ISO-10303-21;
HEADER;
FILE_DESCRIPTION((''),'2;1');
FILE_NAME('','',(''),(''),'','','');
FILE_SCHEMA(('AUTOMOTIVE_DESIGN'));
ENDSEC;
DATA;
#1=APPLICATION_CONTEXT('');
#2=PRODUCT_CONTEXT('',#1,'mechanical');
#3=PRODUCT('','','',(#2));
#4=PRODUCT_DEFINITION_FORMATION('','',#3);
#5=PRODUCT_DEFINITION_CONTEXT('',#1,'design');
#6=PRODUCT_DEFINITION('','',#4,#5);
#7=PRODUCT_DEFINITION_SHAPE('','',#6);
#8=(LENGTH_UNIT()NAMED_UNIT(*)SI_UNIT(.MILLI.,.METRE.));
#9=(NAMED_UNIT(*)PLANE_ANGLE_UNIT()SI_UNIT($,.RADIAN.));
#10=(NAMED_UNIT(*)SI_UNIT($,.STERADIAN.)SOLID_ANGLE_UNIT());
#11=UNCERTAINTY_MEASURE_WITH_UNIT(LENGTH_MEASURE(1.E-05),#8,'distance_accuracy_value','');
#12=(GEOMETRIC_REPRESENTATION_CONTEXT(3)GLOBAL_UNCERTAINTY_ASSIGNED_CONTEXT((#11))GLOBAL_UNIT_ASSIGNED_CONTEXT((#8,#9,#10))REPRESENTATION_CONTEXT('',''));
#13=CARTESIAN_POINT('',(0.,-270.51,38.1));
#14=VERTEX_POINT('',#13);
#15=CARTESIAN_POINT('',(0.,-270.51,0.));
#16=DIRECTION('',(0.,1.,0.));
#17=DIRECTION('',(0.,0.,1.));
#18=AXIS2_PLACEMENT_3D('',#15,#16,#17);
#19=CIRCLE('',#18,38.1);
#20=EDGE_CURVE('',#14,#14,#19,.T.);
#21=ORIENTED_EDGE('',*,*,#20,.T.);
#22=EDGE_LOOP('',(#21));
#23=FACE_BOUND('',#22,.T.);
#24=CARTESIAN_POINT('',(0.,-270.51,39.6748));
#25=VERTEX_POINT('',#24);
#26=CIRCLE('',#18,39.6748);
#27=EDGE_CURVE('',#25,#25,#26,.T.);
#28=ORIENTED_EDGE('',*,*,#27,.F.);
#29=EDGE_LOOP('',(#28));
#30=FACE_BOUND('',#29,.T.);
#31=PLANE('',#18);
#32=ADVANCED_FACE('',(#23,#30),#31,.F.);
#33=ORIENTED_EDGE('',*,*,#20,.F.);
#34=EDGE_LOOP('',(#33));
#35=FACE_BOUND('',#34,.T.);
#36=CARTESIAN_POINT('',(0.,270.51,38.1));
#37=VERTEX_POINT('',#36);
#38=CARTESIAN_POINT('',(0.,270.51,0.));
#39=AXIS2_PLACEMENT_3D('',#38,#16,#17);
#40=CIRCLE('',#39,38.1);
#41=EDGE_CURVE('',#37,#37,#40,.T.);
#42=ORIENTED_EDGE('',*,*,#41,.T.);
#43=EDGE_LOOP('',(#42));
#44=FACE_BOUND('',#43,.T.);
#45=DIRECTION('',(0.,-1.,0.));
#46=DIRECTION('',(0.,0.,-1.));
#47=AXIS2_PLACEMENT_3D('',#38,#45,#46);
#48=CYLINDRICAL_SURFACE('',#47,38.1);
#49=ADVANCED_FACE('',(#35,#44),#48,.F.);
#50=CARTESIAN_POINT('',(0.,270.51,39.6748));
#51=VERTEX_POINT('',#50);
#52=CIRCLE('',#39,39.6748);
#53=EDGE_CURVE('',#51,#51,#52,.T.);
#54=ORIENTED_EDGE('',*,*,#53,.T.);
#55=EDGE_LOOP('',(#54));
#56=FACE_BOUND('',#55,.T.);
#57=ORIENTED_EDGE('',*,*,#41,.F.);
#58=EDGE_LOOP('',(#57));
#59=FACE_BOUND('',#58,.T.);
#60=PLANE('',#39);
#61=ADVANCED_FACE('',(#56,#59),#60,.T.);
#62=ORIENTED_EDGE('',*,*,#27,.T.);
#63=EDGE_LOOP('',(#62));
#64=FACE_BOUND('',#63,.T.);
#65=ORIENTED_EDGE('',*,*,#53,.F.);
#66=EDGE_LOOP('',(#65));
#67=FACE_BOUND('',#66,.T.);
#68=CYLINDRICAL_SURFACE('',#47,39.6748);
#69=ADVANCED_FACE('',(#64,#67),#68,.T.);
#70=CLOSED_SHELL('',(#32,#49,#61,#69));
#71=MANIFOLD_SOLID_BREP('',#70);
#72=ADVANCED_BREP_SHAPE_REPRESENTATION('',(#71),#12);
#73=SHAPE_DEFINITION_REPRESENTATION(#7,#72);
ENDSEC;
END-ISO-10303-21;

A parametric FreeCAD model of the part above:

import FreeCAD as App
import Part
import Sketcher
Q = App.Units.Quantity

doc = App.newDocument("Part")
body = doc.addObject("PartDesign::Body", "Body")

# Sketch on XZ plane
sketch1 = doc.addObject("Sketcher::SketchObject", "Sketch")
body.addObject(sketch1)
sketch1.AttachmentSupport = (doc.XZ_Plane, [""])
sketch1.MapMode = "FlatFace"
sketch1.addGeometry(Part.Circle(App.Vector(0, 0, 0), App.Vector(0, 0, 1), 39.6748), False)
sketch1.addGeometry(Part.Circle(App.Vector(0, 0, 0), App.Vector(0, 0, 1), 38.1), False)
sketch1.addConstraint(Sketcher.Constraint("Coincident", 0, 3, -1, 1))
sketch1.addConstraint(Sketcher.Constraint("Coincident", 1, 3, -1, 1))
sketch1.addConstraint(Sketcher.Constraint("Diameter", 1, Q("3 in")))
sketch1.addConstraint(Sketcher.Constraint("Diameter", 0, Q("3.124 in")))
pad1 = doc.addObject("PartDesign::Pad", "Pad")
body.addObject(pad1)
pad1.Profile = sketch1
pad1.Length = Q("21.3 in")
pad1.Midplane = True

doc.recompute()
